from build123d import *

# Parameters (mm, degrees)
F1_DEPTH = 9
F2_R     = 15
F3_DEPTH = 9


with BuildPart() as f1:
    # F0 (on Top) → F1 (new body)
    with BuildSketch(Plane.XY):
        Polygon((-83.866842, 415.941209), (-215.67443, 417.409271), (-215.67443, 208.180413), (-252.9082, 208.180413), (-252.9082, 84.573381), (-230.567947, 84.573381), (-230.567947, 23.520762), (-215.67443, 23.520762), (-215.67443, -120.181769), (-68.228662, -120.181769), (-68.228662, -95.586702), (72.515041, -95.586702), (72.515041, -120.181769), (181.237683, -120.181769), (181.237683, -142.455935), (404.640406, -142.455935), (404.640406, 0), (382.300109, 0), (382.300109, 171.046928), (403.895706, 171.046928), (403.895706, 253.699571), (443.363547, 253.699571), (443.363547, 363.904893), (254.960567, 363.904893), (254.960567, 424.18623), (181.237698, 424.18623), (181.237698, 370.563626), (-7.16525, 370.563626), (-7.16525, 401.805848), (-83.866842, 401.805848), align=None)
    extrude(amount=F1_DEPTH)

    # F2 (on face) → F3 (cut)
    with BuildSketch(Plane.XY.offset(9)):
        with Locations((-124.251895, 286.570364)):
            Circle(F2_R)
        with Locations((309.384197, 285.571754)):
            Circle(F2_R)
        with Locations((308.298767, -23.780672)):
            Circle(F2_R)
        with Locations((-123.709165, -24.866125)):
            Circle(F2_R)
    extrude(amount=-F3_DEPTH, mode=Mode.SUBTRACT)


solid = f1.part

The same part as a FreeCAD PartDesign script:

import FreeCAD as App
import Part
import Sketcher
Q = App.Units.Quantity

doc = App.newDocument("Part")
body = doc.addObject("PartDesign::Body", "Body")

# Sketch on XY plane
sketch1 = doc.addObject("Sketcher::SketchObject", "Sketch")
body.addObject(sketch1)
sketch1.AttachmentSupport = (doc.XY_Plane, [""])
sketch1.MapMode = "FlatFace"
sketch1.addGeometry(Part.LineSegment(App.Vector(-84, 416, 0), App.Vector(-216, 417, 0)), False)
sketch1.addGeometry(Part.LineSegment(App.Vector(-216, 417, 0), App.Vector(-216, 208, 0)), False)
sketch1.addGeometry(Part.LineSegment(App.Vector(-216, 208, 0), App.Vector(-253, 208, 0)), False)
sketch1.addGeometry(Part.LineSegment(App.Vector(-253, 208, 0), App.Vector(-253, 85, 0)), False)
sketch1.addGeometry(Part.LineSegment(App.Vector(-253, 85, 0), App.Vector(-231, 85, 0)), False)
sketch1.addGeometry(Part.LineSegment(App.Vector(-231, 85, 0), App.Vector(-231, 24, 0)), False)
sketch1.addGeometry(Part.LineSegment(App.Vector(-231, 24, 0), App.Vector(-216, 24, 0)), False)
sketch1.addGeometry(Part.LineSegment(App.Vector(-216, 24, 0), App.Vector(-216, -120, 0)), False)
sketch1.addGeometry(Part.LineSegment(App.Vector(-216, -120, 0), App.Vector(-68, -120, 0)), False)
sketch1.addGeometry(Part.LineSegment(App.Vector(-68, -120, 0), App.Vector(-68, -96, 0)), False)
sketch1.addGeometry(Part.LineSegment(App.Vector(-68, -96, 0), App.Vector(73, -96, 0)), False)
sketch1.addGeometry(Part.LineSegment(App.Vector(73, -96, 0), App.Vector(73, -120, 0)), False)
sketch1.addGeometry(Part.LineSegment(App.Vector(73, -120, 0), App.Vector(181, -120, 0)), False)
sketch1.addGeometry(Part.LineSegment(App.Vector(181, -120, 0), App.Vector(181, -142, 0)), False)
sketch1.addGeometry(Part.LineSegment(App.Vector(181, -142, 0), App.Vector(405, -142, 0)), False)
sketch1.addGeometry(Part.LineSegment(App.Vector(405, -142, 0), App.Vector(405, 0, 0)), False)
sketch1.addGeometry(Part.LineSegment(App.Vector(405, 0, 0), App.Vector(382, 0, 0)), False)
sketch1.addGeometry(Part.LineSegment(App.Vector(382, 0, 0), App.Vector(382, 171, 0)), False)
sketch1.addGeometry(Part.LineSegment(App.Vector(382, 171, 0), App.Vector(404, 171, 0)), False)
sketch1.addGeometry(Part.LineSegment(App.Vector(404, 171, 0), App.Vector(404, 254, 0)), False)
sketch1.addGeometry(Part.LineSegment(App.Vector(404, 254, 0), App.Vector(443, 254, 0)), False)
sketch1.addGeometry(Part.LineSegment(App.Vector(443, 254, 0), App.Vector(443, 364, 0)), False)
sketch1.addGeometry(Part.LineSegment(App.Vector(443, 364, 0), App.Vector(255, 364, 0)), False)
sketch1.addGeometry(Part.LineSegment(App.Vector(255, 364, 0), App.Vector(255, 424, 0)), False)
sketch1.addGeometry(Part.LineSegment(App.Vector(255, 424, 0), App.Vector(181, 424, 0)), False)
sketch1.addGeometry(Part.LineSegment(App.Vector(181, 424, 0), App.Vector(181, 371, 0)), False)
sketch1.addGeometry(Part.LineSegment(App.Vector(181, 371, 0), App.Vector(-7, 371, 0)), False)
sketch1.addGeometry(Part.LineSegment(App.Vector(-7, 371, 0), App.Vector(-7, 402, 0)), False)
sketch1.addGeometry(Part.LineSegment(App.Vector(-7, 402, 0), App.Vector(-84, 402, 0)), False)
sketch1.addGeometry(Part.LineSegment(App.Vector(-84, 402, 0), App.Vector(-84, 416, 0)), False)
sketch1.addConstraint(Sketcher.Constraint("Coincident", 0, 2, 1, 1))
sketch1.addConstraint(Sketcher.Constraint("Coincident", 1, 2, 2, 1))
sketch1.addConstraint(Sketcher.Constraint("Coincident", 2, 2, 3, 1))
sketch1.addConstraint(Sketcher.Constraint("Coincident", 3, 2, 4, 1))
sketch1.addConstraint(Sketcher.Constraint("Coincident", 4, 2, 5, 1))
sketch1.addConstraint(Sketcher.Constraint("Coincident", 5, 2, 6, 1))
sketch1.addConstraint(Sketcher.Constraint("Coincident", 6, 2, 7, 1))
sketch1.addConstraint(Sketcher.Constraint("Coincident", 7, 2, 8, 1))
sketch1.addConstraint(Sketcher.Constraint("Coincident", 8, 2, 9, 1))
sketch1.addConstraint(Sketcher.Constraint("Coincident", 9, 2, 10, 1))
sketch1.addConstraint(Sketcher.Constraint("Coincident", 10, 2, 11, 1))
sketch1.addConstraint(Sketcher.Constraint("Coincident", 11, 2, 12, 1))
sketch1.addConstraint(Sketcher.Constraint("Coincident", 12, 2, 13, 1))
sketch1.addConstraint(Sketcher.Constraint("Coincident", 13, 2, 14, 1))
sketch1.addConstraint(Sketcher.Constraint("Coincident", 14, 2, 15, 1))
sketch1.addConstraint(Sketcher.Constraint("Coincident", 15, 2, 16, 1))
sketch1.addConstraint(Sketcher.Constraint("Coincident", 16, 2, 17, 1))
sketch1.addConstraint(Sketcher.Constraint("Coincident", 17, 2, 18, 1))
sketch1.addConstraint(Sketcher.Constraint("Coincident", 18, 2, 19, 1))
sketch1.addConstraint(Sketcher.Constraint("Coincident", 19, 2, 20, 1))
sketch1.addConstraint(Sketcher.Constraint("Coincident", 20, 2, 21, 1))
sketch1.addConstraint(Sketcher.Constraint("Coincident", 21, 2, 22, 1))
sketch1.addConstraint(Sketcher.Constraint("Coincident", 22, 2, 23, 1))
sketch1.addConstraint(Sketcher.Constraint("Coincident", 23, 2, 24, 1))
sketch1.addConstraint(Sketcher.Constraint("Coincident", 24, 2, 25, 1))
sketch1.addConstraint(Sketcher.Constraint("Coincident", 25, 2, 26, 1))
sketch1.addConstraint(Sketcher.Constraint("Coincident", 26, 2, 27, 1))
sketch1.addConstraint(Sketcher.Constraint("Coincident", 27, 2, 28, 1))
sketch1.addConstraint(Sketcher.Constraint("Coincident", 28, 2, 29, 1))
sketch1.addConstraint(Sketcher.Constraint("Coincident", 29, 2, 0, 1))
sketch1.addConstraint(Sketcher.Constraint("Vertical", 1))
sketch1.addConstraint(Sketcher.Constraint("Horizontal", 2))
sketch1.addConstraint(Sketcher.Constraint("Vertical", 3))
sketch1.addConstraint(Sketcher.Constraint("Horizontal", 4))
sketch1.addConstraint(Sketcher.Constraint("Vertical", 5))
sketch1.addConstraint(Sketcher.Constraint("Horizontal", 6))
sketch1.addConstraint(Sketcher.Constraint("Vertical", 7))
sketch1.addConstraint(Sketcher.Constraint("Horizontal", 8))
sketch1.addConstraint(Sketcher.Constraint("Vertical", 9))
sketch1.addConstraint(Sketcher.Constraint("Horizontal", 10))
sketch1.addConstraint(Sketcher.Constraint("Vertical", 11))
sketch1.addConstraint(Sketcher.Constraint("Horizontal", 12))
sketch1.addConstraint(Sketcher.Constraint("Vertical", 13))
sketch1.addConstraint(Sketcher.Constraint("Horizontal", 14))
sketch1.addConstraint(Sketcher.Constraint("Vertical", 15))
sketch1.addConstraint(Sketcher.Constraint("Horizontal", 16))
sketch1.addConstraint(Sketcher.Constraint("Vertical", 17))
sketch1.addConstraint(Sketcher.Constraint("Horizontal", 18))
sketch1.addConstraint(Sketcher.Constraint("Vertical", 19))
sketch1.addConstraint(Sketcher.Constraint("Horizontal", 20))
sketch1.addConstraint(Sketcher.Constraint("Vertical", 21))
sketch1.addConstraint(Sketcher.Constraint("Horizontal", 22))
sketch1.addConstraint(Sketcher.Constraint("Vertical", 23))
sketch1.addConstraint(Sketcher.Constraint("Horizontal", 24))
sketch1.addConstraint(Sketcher.Constraint("Vertical", 25))
sketch1.addConstraint(Sketcher.Constraint("Horizontal", 26))
sketch1.addConstraint(Sketcher.Constraint("Vertical", 27))
sketch1.addConstraint(Sketcher.Constraint("Horizontal", 28))
sketch1.addConstraint(Sketcher.Constraint("Vertical", 29))
sketch1.addConstraint(Sketcher.Constraint("PointOnObject", 15, 2, -1))
sketch1.addConstraint(Sketcher.Constraint("Horizontal", 8, 2, 11, 2))
sketch1.addConstraint(Sketcher.Constraint("Vertical", 1, 2, 6, 2))
sketch1.addConstraint(Sketcher.Constraint("DistanceX", 2, 2, 2, 1, Q("37.23377 mm")))
sketch1.addConstraint(Sketcher.Constraint("DistanceX", 20, 1, 20, 2, Q("39.467841 mm")))
sketch1.addConstraint(Sketcher.Constraint("DistanceX", 22, 2, 22, 1, Q("188.40298 mm")))
sketch1.addConstraint(Sketcher.Constraint("DistanceX", 24, 2, 24, 1, Q("73.722869 mm")))
sketch1.addConstraint(Sketcher.Constraint("DistanceY", 1, 2, 1, 1, Q("209.228858 mm")))
sketch1.addConstraint(Sketcher.Constraint("DistanceY", 3, 2, 3, 1, Q("123.607032 mm")))
sketch1.addConstraint(Sketcher.Constraint("DistanceY", 5, 2, 5, 1, Q("61.052619 mm")))
sketch1.addConstraint(Sketcher.Constraint("DistanceY", 7, 2, 7, 1, Q("143.702531 mm")))
sketch1.addConstraint(Sketcher.Constraint("DistanceY", 17, 1, 17, 2, Q("171.046928 mm")))
sketch1.addConstraint(Sketcher.Constraint("DistanceY", 29, 1, 29, 2, Q("14.135361 mm")))
sketch1.addConstraint(Sketcher.Constraint("DistanceX", 2, 2, -1, 1, Q("252.9082 mm")))
sketch1.addConstraint(Sketcher.Constraint("DistanceX", -1, 1, 24, 2, Q("181.237698 mm")))
sketch1.addConstraint(Sketcher.Constraint("DistanceX", 18, 2, 15, 2, Q("0.7447 mm")))
sketch1.addConstraint(Sketcher.Constraint("DistanceX", 4, 1, 4, 2, Q("22.340253 mm")))
sketch1.addConstraint(Sketcher.Constraint("DistanceX", 8, 1, 8, 2, Q("147.445768 mm")))
sketch1.addConstraint(Sketcher.Constraint("DistanceX", 10, 1, 10, 2, Q("140.743703 mm")))
sketch1.addConstraint(Sketcher.Constraint("DistanceX", 12, 1, 12, 2, Q("108.722642 mm")))
sketch1.addConstraint(Sketcher.Constraint("DistanceX", 16, 2, 16, 1, Q("22.340297 mm")))
sketch1.addConstraint(Sketcher.Constraint("DistanceX", 26, 2, 26, 1, Q("188.402948 mm")))
sketch1.addConstraint(Sketcher.Constraint("DistanceX", 28, 2, 28, 1, Q("76.701592 mm")))
sketch1.addConstraint(Sketcher.Constraint("DistanceY", 9, 1, 9, 2, Q("24.595067 mm")))
sketch1.addConstraint(Sketcher.Constraint("DistanceY", 13, 2, 13, 1, Q("22.274166 mm")))
sketch1.addConstraint(Sketcher.Constraint("DistanceY", 15, 1, 15, 2, Q("142.455935 mm")))
sketch1.addConstraint(Sketcher.Constraint("DistanceY", 19, 1, 19, 2, Q("82.652643 mm")))
sketch1.addConstraint(Sketcher.Constraint("DistanceY", 21, 1, 21, 2, Q("110.205322 mm")))
sketch1.addConstraint(Sketcher.Constraint("DistanceY", 23, 1, 23, 2, Q("60.281337 mm")))
sketch1.addConstraint(Sketcher.Constraint("DistanceY", 25, 2, 25, 1, Q("53.622604 mm")))
sketch1.addConstraint(Sketcher.Constraint("DistanceY", 27, 1, 27, 2, Q("31.242222 mm")))
pad1 = doc.addObject("PartDesign::Pad", "Pad")
body.addObject(pad1)
pad1.Profile = sketch1
pad1.Length = 9

# Sketch on XY plane
sketch2 = doc.addObject("Sketcher::SketchObject", "Sketch001")
body.addObject(sketch2)
sketch2.AttachmentSupport = (doc.XY_Plane, [""])
sketch2.MapMode = "FlatFace"
sketch2.AttachmentOffset = App.Placement(App.Vector(0, 0, 9), App.Rotation())
sketch2.addGeometry(Part.Circle(App.Vector(-124, 287, 0), App.Vector(0, 0, 1), 15), False)
sketch2.addGeometry(Part.Circle(App.Vector(309, 286, 0), App.Vector(0, 0, 1), 15), False)
sketch2.addGeometry(Part.Circle(App.Vector(308, -24, 0), App.Vector(0, 0, 1), 15), False)
sketch2.addGeometry(Part.Circle(App.Vector(-124, -25, 0), App.Vector(0, 0, 1), 15), False)
sketch2.addConstraint(Sketcher.Constraint("Equal", 0, 1))
sketch2.addConstraint(Sketcher.Constraint("Equal", 1, 2))
sketch2.addConstraint(Sketcher.Constraint("Equal", 2, 3))
sketch2.addConstraint(Sketcher.Constraint("Diameter", 0, Q("30 mm")))
sketch2.addConstraint(Sketcher.Constraint("DistanceY", 2, 3, -1, 1, Q("23.780672 mm")))
sketch2.addConstraint(Sketcher.Constraint("DistanceX", 0, 3, 1, 3, Q("433.636092 mm")))
sketch2.addConstraint(Sketcher.Constraint("DistanceY", 1, 3, 0, 3, Q("0.99861 mm")))
sketch2.addConstraint(Sketcher.Constraint("DistanceX", 2, 3, 1, 3, Q("1.08543 mm")))
sketch2.addConstraint(Sketcher.Constraint("DistanceX", 0, 3, 3, 3, Q("0.54273 mm")))
sketch2.addConstraint(Sketcher.Constraint("DistanceY", 3, 3, 0, 3, Q("311.436489 mm")))
sketch2.addConstraint(Sketcher.Constraint("DistanceX", 0, 3, -1, 1, Q("124.251895 mm")))
sketch2.addConstraint(Sketcher.Constraint("DistanceY", -1, 1, 0, 3, Q("286.570364 mm")))
pocket1 = doc.addObject("PartDesign::Pocket", "Pocket")
body.addObject(pocket1)
pocket1.Profile = sketch2
pocket1.Length = 9

doc.recompute()
